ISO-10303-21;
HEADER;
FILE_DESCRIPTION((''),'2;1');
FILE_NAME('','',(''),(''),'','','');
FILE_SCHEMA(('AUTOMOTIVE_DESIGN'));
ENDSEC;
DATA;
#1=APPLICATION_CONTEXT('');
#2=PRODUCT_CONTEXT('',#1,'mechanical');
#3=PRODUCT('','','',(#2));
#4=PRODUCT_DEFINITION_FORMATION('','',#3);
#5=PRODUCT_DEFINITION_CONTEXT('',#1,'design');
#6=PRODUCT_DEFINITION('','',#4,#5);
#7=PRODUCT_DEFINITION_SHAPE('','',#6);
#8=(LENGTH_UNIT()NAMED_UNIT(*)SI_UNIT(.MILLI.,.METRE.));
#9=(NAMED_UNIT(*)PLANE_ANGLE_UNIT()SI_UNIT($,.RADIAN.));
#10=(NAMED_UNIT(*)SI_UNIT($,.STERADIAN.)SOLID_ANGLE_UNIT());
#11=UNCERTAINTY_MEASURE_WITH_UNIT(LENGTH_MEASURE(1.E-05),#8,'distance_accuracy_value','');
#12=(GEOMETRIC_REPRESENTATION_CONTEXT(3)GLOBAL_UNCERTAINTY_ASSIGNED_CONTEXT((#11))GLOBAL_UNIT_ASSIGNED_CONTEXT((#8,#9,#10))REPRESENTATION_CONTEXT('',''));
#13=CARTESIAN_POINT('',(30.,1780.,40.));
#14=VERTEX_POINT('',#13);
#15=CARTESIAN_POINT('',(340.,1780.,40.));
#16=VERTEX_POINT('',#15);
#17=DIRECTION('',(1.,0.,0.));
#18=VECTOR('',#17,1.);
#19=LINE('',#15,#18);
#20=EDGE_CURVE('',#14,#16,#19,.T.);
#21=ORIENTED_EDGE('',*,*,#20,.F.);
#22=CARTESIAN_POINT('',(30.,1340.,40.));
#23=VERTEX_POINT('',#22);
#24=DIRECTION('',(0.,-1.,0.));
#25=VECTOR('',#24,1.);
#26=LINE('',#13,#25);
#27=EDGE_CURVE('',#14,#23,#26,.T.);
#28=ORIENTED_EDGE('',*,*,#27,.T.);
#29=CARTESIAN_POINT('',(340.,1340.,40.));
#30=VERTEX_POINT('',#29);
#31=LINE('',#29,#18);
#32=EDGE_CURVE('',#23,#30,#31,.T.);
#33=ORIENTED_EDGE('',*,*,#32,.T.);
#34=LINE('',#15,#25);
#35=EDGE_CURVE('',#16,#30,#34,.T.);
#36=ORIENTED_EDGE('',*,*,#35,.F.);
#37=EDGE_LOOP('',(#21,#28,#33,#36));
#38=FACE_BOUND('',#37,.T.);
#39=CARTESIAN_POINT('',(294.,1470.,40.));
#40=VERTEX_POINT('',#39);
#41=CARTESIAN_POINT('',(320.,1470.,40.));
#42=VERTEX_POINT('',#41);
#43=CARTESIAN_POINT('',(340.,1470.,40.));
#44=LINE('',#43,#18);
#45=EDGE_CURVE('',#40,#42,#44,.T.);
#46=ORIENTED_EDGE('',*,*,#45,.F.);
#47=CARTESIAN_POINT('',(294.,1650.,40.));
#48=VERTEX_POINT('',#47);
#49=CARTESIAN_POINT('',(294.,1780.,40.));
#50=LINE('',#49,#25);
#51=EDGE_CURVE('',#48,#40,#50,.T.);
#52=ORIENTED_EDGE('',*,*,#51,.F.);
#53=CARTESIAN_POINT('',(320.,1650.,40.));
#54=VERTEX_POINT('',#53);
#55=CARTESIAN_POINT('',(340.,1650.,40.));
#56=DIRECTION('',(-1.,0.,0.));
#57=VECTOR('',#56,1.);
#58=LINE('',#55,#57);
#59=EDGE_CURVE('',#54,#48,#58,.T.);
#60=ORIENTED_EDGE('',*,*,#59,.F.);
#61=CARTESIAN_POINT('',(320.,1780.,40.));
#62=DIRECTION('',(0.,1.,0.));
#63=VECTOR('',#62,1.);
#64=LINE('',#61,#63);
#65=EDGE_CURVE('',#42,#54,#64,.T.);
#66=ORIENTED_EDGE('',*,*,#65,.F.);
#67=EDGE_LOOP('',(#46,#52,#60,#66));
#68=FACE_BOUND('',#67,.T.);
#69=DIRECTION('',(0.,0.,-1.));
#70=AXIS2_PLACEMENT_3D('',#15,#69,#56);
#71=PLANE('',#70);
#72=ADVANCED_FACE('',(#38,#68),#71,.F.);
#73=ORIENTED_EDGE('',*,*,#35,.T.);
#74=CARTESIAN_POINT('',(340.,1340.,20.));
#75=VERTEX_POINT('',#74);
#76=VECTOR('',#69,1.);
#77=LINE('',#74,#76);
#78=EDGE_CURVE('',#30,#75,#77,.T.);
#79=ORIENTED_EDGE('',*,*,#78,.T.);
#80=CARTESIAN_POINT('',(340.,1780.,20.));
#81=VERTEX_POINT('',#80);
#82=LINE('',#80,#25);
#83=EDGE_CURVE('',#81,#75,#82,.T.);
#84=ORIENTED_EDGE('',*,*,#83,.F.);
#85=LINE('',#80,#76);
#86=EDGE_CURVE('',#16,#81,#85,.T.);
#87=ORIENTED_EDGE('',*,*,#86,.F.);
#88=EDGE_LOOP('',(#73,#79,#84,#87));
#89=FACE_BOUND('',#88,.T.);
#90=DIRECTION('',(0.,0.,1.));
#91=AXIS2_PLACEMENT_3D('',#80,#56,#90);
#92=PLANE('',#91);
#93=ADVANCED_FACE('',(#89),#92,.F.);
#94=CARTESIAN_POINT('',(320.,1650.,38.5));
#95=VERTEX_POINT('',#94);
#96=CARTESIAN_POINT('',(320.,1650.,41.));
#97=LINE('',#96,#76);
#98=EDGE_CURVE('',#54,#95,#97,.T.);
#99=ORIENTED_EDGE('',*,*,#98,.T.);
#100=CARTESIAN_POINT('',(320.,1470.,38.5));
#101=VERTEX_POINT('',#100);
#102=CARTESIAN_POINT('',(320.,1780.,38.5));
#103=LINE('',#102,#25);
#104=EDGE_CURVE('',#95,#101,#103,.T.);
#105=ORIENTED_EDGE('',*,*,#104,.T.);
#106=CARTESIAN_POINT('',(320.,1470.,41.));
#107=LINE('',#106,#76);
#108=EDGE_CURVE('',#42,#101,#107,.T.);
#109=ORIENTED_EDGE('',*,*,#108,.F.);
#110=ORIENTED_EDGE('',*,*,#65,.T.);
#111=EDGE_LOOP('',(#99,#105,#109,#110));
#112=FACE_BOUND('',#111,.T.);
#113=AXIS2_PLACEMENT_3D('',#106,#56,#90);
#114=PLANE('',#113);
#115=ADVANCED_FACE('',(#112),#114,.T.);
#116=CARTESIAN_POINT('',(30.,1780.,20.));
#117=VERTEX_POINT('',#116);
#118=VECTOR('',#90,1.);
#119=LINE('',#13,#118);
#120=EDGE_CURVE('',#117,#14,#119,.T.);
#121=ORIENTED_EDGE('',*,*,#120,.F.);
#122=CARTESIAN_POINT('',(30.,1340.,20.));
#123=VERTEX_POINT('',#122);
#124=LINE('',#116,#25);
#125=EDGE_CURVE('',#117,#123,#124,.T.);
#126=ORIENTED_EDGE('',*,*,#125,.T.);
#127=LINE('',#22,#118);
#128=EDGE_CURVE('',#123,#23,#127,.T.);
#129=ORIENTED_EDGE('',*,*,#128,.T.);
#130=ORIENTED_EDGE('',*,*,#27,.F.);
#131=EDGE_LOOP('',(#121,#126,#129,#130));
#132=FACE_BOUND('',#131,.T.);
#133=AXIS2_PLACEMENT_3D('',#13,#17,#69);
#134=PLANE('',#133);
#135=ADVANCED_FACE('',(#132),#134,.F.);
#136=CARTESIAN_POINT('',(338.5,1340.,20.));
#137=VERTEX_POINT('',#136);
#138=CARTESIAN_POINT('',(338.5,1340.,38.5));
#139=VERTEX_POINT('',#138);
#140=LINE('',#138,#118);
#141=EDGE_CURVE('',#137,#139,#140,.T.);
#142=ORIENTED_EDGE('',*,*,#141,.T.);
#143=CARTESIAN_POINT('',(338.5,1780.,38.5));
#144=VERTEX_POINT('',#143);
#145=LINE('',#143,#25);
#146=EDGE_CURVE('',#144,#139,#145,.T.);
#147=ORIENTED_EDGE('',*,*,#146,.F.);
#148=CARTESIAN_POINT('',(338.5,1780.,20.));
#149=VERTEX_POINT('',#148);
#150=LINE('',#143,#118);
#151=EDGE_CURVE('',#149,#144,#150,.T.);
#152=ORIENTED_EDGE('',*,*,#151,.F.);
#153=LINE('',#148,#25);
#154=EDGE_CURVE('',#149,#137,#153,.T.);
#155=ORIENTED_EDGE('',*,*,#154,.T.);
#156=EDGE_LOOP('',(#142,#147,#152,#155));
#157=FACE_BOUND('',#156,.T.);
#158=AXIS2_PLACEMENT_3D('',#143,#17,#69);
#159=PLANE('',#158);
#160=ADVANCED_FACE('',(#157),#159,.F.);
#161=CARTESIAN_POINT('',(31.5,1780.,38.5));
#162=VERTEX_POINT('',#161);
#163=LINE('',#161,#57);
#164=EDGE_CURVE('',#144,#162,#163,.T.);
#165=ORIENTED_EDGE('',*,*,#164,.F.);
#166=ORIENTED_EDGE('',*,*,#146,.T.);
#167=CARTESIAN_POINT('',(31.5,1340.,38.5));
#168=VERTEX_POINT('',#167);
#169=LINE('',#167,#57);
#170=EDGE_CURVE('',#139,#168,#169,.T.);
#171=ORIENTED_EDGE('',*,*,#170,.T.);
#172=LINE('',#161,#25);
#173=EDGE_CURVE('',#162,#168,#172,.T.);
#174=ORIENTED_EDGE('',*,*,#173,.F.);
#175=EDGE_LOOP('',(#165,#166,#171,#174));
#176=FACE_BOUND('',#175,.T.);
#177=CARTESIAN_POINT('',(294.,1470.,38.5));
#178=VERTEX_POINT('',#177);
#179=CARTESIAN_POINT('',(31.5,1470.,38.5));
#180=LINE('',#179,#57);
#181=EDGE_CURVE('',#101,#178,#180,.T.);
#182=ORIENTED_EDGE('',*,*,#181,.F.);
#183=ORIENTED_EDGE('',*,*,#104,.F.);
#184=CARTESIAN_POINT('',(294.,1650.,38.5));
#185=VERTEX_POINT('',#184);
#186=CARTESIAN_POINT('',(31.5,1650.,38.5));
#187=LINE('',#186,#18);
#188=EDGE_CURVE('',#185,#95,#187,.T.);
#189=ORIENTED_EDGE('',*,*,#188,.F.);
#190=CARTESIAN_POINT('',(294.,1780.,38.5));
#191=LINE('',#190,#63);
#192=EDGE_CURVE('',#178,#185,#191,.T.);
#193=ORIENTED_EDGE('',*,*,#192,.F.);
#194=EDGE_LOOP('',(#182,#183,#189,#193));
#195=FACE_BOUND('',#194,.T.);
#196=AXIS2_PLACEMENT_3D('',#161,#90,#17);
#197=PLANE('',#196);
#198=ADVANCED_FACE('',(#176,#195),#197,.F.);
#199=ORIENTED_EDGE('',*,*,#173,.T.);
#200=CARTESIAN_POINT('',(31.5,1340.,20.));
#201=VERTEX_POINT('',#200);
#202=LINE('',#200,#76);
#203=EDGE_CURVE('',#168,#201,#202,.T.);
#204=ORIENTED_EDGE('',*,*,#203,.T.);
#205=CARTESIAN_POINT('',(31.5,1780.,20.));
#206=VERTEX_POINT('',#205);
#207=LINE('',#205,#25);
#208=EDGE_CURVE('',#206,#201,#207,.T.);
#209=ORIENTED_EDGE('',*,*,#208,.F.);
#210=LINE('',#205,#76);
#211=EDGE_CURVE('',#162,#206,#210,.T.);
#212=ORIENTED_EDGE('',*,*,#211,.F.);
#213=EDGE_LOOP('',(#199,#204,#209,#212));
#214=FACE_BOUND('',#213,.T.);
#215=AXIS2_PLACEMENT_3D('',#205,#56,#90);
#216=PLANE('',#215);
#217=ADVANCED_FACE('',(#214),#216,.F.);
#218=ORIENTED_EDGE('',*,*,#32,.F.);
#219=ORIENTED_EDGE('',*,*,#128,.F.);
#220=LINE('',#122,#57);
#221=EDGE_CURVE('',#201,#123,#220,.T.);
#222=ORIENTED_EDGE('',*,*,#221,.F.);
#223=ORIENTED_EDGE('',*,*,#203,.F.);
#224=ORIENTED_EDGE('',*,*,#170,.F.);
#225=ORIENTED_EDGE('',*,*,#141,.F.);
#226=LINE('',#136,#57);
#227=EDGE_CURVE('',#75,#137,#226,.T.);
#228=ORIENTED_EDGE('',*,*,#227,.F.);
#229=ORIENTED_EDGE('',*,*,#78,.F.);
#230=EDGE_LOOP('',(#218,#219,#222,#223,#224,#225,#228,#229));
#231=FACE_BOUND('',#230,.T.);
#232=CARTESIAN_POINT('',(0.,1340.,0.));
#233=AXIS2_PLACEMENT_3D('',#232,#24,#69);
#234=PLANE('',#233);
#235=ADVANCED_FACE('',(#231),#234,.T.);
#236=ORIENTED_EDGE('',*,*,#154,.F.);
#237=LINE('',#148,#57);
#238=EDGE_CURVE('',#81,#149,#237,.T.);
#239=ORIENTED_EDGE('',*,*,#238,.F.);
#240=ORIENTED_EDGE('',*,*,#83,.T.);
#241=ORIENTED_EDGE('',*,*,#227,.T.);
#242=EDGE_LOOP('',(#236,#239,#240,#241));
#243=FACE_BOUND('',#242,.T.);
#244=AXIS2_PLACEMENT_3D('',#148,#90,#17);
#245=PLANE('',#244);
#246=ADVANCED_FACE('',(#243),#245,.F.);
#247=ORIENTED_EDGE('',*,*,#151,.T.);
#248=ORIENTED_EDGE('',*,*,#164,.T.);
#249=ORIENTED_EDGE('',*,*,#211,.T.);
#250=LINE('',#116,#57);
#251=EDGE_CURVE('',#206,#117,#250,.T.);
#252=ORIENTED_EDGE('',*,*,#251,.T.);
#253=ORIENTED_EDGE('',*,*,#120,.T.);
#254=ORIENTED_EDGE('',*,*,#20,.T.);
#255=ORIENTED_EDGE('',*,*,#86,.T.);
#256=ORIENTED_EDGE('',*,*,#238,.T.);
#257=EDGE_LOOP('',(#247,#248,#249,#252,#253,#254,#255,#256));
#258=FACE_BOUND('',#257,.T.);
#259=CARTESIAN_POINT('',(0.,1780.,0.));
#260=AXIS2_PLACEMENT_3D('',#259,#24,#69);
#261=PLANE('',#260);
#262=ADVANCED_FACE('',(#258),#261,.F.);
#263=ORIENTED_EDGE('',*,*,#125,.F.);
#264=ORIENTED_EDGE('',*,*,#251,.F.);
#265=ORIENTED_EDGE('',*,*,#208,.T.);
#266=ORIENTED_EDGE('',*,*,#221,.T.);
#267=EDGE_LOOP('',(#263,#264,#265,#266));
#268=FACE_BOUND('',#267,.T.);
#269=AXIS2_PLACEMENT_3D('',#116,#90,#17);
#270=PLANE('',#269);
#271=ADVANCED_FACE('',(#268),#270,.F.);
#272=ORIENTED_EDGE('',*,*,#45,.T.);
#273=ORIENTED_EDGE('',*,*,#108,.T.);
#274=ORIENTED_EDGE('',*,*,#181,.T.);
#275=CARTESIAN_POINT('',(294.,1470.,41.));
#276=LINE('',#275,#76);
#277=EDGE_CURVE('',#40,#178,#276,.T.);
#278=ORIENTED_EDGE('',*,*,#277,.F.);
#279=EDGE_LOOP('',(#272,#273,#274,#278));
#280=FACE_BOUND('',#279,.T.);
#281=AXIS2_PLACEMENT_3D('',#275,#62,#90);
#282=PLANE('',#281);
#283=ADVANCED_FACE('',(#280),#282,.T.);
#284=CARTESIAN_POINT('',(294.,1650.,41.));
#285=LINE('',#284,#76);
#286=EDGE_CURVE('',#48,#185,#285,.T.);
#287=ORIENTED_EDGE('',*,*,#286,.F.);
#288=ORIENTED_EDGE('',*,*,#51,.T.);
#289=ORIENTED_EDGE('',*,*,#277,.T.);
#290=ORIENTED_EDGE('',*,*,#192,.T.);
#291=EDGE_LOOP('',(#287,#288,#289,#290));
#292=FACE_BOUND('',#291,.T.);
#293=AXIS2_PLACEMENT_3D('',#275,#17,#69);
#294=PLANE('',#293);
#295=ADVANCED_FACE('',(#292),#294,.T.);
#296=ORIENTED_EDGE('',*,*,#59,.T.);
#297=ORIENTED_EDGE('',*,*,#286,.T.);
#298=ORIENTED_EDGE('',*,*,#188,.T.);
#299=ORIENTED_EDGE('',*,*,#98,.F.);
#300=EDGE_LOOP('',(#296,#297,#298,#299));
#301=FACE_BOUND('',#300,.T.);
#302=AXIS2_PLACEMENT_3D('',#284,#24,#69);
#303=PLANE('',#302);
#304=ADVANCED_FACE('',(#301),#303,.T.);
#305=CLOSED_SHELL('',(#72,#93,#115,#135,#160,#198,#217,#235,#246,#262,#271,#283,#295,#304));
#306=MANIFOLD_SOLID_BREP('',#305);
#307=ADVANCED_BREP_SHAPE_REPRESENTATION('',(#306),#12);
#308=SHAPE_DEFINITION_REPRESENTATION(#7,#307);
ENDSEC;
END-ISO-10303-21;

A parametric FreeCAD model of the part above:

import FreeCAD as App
import Part
import Sketcher


def add_polygon(sketch, points):
    """Adds a closed chain of lines whose ends are joined by coincident constraints."""
    first, n = sketch.GeometryCount, len(points)
    for a, b in zip(points, points[1:] + points[:1]):
        sketch.addGeometry(Part.LineSegment(App.Vector(*a, 0), App.Vector(*b, 0)), False)
    for i in range(n):
        sketch.addConstraint(Sketcher.Constraint("Coincident", first + i, 2, first + (i + 1) % n, 1))

doc = App.newDocument("Part")
body = doc.addObject("PartDesign::Body", "Body")

# Sketch on XZ plane
sketch1 = body.newObject("Sketcher::SketchObject", "Sketch")
sketch1.AttachmentSupport = (doc.getObject("XZ_Plane"), [""])
sketch1.MapMode = "FlatFace"
sketch1.AttachmentOffset = App.Placement(App.Vector(0, 0, -1340), App.Rotation())
add_polygon(sketch1, [(30, 20), (30, 40), (340, 40), (340, 20), (338.5, 20), (338.5, 38.5), (31.5, 38.5), (31.5, 20)])  # lines 0-7
sketch1.addConstraint(Sketcher.Constraint("Vertical", 0))
sketch1.addConstraint(Sketcher.Constraint("Horizontal", 1))
sketch1.addConstraint(Sketcher.Constraint("Vertical", 2))
sketch1.addConstraint(Sketcher.Constraint("Horizontal", 3))
sketch1.addConstraint(Sketcher.Constraint("Vertical", 4))
sketch1.addConstraint(Sketcher.Constraint("Horizontal", 5))
sketch1.addConstraint(Sketcher.Constraint("Vertical", 6))
sketch1.addConstraint(Sketcher.Constraint("Horizontal", 7))
sketch1.addConstraint(Sketcher.Constraint("Horizontal", 3, 2, 6, 2))
sketch1.addConstraint(Sketcher.Constraint("Equal", 3, 7))
sketch1.addConstraint(Sketcher.Constraint("DistanceX", 1, 1, 1, 2, 310.0))
sketch1.addConstraint(Sketcher.Constraint("DistanceX", 5, 2, 5, 1, 307.0))
sketch1.addConstraint(Sketcher.Constraint("DistanceY", 0, 1, 0, 2, 20.0))
sketch1.addConstraint(Sketcher.Constraint("DistanceY", 4, 1, 4, 2, 18.5))
sketch1.addConstraint(Sketcher.Constraint("DistanceX", -1, 1, 0, 2, 30.0))
sketch1.addConstraint(Sketcher.Constraint("DistanceY", -1, 1, 0, 2, 40.0))
pad1 = body.newObject("PartDesign::Pad", "Pad")
pad1.Profile = sketch1
pad1.Length = 440
pad1.Reversed = True

# Sketch on XY plane
sketch2 = body.newObject("Sketcher::SketchObject", "Sketch001")
sketch2.AttachmentSupport = (doc.getObject("XY_Plane"), [""])
sketch2.MapMode = "FlatFace"
sketch2.AttachmentOffset = App.Placement(App.Vector(0, 0, 27), App.Rotation())
add_polygon(sketch2, [(294, 1650), (294, 1470), (320, 1470), (320, 1650)])  # lines 0-3
sketch2.addConstraint(Sketcher.Constraint("Vertical", 0))
sketch2.addConstraint(Sketcher.Constraint("Horizontal", 1))
sketch2.addConstraint(Sketcher.Constraint("Vertical", 2))
sketch2.addConstraint(Sketcher.Constraint("Horizontal", 3))
sketch2.addConstraint(Sketcher.Constraint("DistanceX", 1, 1, 1, 2, 26.0))
sketch2.addConstraint(Sketcher.Constraint("DistanceY", 0, 2, 0, 1, 180.0))
sketch2.addConstraint(Sketcher.Constraint("DistanceX", -1, 1, 0, 2, 294.0))
sketch2.addConstraint(Sketcher.Constraint("DistanceY", -1, 1, 0, 2, 1470.0))
pocket1 = body.newObject("PartDesign::Pocket", "Pocket")
pocket1.Profile = sketch2
pocket1.Length = 14
pocket1.Reversed = True

doc.recompute()
